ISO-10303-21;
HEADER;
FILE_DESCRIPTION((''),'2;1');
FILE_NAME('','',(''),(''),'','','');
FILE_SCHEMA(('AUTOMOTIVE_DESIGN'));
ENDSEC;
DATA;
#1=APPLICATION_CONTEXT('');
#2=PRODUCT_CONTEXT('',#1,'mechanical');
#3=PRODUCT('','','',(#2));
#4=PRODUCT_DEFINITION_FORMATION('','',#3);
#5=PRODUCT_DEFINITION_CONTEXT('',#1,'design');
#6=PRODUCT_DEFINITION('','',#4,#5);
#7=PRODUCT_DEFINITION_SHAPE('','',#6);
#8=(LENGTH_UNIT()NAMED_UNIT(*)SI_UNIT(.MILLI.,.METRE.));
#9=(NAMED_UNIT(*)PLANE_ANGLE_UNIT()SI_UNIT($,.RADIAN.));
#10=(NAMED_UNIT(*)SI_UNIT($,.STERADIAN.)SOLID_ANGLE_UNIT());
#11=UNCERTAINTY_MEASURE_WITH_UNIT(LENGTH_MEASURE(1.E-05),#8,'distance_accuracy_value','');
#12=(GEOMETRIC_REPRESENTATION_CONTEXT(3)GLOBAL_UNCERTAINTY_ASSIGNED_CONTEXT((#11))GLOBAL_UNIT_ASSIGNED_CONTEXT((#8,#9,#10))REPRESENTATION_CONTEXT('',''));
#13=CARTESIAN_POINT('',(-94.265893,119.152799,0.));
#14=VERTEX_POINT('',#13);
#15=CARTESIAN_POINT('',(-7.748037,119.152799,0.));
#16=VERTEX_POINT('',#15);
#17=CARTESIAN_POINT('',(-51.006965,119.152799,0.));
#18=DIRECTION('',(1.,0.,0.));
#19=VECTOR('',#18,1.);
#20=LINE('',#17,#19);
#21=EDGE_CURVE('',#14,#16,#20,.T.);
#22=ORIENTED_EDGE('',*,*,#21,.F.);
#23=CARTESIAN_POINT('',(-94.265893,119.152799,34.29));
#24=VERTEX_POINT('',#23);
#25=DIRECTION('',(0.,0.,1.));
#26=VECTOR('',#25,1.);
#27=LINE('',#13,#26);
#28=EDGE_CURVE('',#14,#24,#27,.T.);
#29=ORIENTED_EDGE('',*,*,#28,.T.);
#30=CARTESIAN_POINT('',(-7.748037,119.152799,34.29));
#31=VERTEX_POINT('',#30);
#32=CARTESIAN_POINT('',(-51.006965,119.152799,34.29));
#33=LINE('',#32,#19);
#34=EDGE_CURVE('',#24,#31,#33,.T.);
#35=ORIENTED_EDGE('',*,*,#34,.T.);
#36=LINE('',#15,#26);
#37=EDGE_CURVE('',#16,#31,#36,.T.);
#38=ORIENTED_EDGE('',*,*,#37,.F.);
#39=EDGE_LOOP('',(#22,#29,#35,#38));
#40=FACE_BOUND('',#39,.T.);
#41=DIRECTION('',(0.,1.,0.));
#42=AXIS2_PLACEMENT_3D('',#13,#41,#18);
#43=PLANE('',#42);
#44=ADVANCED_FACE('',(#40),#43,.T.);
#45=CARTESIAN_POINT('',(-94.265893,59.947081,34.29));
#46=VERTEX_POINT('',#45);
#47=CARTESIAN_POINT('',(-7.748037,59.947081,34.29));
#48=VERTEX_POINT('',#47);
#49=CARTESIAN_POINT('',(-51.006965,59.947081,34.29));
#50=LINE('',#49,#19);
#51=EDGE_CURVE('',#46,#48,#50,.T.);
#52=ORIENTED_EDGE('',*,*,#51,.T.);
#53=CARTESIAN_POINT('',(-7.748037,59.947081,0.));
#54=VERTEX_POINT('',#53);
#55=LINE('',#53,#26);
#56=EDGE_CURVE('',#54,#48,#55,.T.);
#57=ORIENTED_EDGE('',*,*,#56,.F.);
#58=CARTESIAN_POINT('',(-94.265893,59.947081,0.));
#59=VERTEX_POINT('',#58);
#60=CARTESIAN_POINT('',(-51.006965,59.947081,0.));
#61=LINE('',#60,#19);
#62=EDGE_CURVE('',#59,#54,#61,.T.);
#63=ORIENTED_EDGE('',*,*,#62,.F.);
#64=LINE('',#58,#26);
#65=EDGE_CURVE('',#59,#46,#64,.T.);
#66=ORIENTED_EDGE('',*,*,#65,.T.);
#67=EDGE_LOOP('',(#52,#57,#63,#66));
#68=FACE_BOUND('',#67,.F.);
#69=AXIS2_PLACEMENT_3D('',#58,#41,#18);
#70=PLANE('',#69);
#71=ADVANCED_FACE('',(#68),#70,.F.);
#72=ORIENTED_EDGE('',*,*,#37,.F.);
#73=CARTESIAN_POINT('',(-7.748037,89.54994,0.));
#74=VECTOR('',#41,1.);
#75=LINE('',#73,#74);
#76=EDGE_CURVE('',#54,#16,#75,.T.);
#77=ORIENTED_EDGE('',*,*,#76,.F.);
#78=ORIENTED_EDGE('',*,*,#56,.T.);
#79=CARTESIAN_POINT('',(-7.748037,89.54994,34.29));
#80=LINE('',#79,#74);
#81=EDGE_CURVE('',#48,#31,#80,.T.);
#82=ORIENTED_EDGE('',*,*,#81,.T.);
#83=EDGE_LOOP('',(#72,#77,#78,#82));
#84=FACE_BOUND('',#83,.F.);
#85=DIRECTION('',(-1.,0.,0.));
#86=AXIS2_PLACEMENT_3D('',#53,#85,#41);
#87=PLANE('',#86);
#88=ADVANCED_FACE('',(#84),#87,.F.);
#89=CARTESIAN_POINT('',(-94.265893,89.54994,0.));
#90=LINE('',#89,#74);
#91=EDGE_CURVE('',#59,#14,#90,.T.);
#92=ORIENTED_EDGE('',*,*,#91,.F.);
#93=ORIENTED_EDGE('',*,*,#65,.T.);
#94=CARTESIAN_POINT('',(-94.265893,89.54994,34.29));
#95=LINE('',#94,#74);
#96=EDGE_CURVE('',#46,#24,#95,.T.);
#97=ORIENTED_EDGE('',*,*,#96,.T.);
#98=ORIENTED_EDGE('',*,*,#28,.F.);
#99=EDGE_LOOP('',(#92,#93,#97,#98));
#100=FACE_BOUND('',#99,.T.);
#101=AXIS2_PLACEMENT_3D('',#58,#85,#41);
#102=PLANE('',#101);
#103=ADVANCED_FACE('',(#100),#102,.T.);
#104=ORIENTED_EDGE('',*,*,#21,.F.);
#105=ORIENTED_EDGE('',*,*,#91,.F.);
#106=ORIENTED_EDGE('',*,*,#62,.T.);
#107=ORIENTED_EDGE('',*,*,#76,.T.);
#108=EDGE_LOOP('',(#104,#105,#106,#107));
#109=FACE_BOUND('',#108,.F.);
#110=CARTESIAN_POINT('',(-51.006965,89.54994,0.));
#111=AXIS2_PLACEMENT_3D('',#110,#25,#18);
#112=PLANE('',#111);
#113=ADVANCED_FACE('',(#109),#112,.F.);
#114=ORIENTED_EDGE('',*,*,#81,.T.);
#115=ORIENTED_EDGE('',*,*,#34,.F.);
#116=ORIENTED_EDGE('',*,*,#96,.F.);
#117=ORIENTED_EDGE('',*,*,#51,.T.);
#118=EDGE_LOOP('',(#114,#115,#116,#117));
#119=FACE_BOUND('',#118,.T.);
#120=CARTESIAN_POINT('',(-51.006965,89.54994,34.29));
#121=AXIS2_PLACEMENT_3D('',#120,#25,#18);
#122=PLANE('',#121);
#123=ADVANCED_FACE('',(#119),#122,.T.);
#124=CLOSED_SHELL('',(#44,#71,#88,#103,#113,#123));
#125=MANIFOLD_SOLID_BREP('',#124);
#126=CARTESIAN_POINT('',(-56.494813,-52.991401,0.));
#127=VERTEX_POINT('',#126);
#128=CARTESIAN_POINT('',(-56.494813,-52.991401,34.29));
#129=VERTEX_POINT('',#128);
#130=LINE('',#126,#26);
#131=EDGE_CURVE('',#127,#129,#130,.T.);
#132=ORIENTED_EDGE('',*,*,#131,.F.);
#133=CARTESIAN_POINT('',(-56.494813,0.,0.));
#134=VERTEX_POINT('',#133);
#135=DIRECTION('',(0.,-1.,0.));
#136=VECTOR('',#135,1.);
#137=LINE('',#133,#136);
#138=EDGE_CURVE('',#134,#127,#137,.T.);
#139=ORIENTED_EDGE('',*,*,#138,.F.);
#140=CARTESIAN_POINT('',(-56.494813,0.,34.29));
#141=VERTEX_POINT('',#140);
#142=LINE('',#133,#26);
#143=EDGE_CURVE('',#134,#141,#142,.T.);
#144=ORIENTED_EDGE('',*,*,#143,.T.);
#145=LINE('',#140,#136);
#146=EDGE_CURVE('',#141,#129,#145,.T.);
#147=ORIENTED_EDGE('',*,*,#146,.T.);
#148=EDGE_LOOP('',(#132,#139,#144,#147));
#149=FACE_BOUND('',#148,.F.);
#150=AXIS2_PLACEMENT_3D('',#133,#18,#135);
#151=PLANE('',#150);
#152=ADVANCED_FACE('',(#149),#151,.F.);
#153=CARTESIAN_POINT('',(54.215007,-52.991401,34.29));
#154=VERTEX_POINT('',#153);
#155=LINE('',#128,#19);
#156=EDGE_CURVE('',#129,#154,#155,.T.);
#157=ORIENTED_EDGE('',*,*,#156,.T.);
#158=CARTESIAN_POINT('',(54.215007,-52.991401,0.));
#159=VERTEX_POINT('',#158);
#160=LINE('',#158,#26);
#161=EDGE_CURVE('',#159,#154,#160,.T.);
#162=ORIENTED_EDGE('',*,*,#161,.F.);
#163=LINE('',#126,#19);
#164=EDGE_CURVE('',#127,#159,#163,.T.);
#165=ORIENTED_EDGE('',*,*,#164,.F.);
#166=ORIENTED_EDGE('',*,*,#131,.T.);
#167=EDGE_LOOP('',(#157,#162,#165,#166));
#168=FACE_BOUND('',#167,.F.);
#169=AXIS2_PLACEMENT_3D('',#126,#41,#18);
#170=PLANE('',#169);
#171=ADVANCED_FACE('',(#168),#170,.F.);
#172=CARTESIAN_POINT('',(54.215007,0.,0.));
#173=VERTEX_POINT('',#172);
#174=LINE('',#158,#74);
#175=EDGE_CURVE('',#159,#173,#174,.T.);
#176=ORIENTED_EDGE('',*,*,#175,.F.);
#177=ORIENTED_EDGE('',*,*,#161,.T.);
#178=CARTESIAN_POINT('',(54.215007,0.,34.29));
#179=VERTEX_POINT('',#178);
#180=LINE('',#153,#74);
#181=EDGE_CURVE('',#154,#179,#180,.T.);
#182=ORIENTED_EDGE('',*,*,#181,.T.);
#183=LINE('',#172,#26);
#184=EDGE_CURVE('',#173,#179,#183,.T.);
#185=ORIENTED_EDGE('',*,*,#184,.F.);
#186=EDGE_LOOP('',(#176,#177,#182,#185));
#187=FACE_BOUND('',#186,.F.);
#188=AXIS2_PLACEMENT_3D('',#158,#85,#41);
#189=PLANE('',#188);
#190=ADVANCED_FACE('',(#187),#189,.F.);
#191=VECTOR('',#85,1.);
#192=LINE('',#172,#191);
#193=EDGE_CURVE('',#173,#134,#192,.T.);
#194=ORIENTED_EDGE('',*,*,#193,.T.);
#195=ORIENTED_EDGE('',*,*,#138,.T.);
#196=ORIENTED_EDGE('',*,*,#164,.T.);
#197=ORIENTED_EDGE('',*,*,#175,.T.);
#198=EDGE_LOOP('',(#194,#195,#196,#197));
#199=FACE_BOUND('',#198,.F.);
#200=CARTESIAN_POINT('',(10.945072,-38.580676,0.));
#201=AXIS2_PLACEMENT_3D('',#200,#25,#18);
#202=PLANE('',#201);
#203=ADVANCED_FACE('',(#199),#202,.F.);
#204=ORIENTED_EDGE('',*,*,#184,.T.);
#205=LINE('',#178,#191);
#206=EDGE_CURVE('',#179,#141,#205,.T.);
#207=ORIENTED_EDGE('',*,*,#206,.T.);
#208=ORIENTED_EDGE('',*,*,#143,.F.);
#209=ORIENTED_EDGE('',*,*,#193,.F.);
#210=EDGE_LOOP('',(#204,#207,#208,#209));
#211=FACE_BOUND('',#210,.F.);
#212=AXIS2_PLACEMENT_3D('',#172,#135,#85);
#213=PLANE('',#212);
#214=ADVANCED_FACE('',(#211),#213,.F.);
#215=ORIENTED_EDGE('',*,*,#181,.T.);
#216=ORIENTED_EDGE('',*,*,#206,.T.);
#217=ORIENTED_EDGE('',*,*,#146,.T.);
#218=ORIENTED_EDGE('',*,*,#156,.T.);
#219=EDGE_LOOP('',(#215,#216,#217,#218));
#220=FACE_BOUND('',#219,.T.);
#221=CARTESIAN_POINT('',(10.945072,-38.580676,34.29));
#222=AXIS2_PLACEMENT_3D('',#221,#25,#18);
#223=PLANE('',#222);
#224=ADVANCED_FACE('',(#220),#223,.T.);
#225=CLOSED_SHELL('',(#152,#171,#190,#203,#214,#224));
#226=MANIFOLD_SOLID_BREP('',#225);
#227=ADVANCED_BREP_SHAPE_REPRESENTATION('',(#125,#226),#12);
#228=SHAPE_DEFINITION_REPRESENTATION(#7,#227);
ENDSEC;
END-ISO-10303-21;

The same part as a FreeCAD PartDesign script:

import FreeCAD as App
import Part
import Sketcher

V = App.Vector
Q = App.Units.Quantity

doc = App.newDocument("Part")
body = doc.addObject("PartDesign::Body", "Body")

# Sketch on XY plane
sketch1 = doc.addObject("Sketcher::SketchObject", "Sketch")
body.addObject(sketch1)
sketch1.AttachmentSupport = (doc.XY_Plane, [""])
sketch1.MapMode = "FlatFace"
sketch1.addGeometry(Part.LineSegment(V(-94.265893, 119.152799, 0), V(-94.265893, 59.947081, 0)), False)
sketch1.addGeometry(Part.LineSegment(V(-94.265893, 59.947081, 0), V(-7.748037, 59.947081, 0)), False)
sketch1.addGeometry(Part.LineSegment(V(-7.748037, 59.947081, 0), V(-7.748037, 119.152799, 0)), False)
sketch1.addGeometry(Part.LineSegment(V(-7.748037, 119.152799, 0), V(-94.265893, 119.152799, 0)), False)
sketch1.addConstraint(Sketcher.Constraint("Coincident", 0, 2, 1, 1))
sketch1.addConstraint(Sketcher.Constraint("Coincident", 1, 2, 2, 1))
sketch1.addConstraint(Sketcher.Constraint("Coincident", 2, 2, 3, 1))
sketch1.addConstraint(Sketcher.Constraint("Coincident", 3, 2, 0, 1))
sketch1.addConstraint(Sketcher.Constraint("Vertical", 0))
sketch1.addConstraint(Sketcher.Constraint("Horizontal", 1))
sketch1.addConstraint(Sketcher.Constraint("Vertical", 2))
sketch1.addConstraint(Sketcher.Constraint("Horizontal", 3))
sketch1.addConstraint(Sketcher.Constraint("DistanceY", 0, 2, 0, 1, 59.205718))
sketch1.addConstraint(Sketcher.Constraint("DistanceY", -1, 1, 2, 2, 119.152799))
sketch1.addConstraint(Sketcher.Constraint("DistanceX", 1, 1, 1, 2, 86.517856))
sketch1.addConstraint(Sketcher.Constraint("DistanceX", 0, 2, -1, 1, 94.265893))
pad1 = doc.addObject("PartDesign::Pad", "Pad")
body.addObject(pad1)
pad1.Profile = sketch1
pad1.Length = Q("1.35 in")
body2 = doc.addObject("PartDesign::Body", "Body001")

# Sketch on XY plane
sketch2 = doc.addObject("Sketcher::SketchObject", "Sketch001")
body2.addObject(sketch2)
sketch2.AttachmentSupport = (doc.getObject("XY_Plane001"), [""])
sketch2.MapMode = "FlatFace"
sketch2.addGeometry(Part.LineSegment(V(54.215007, 0, 0), V(-56.494813, 0, 0)), False)
sketch2.addGeometry(Part.LineSegment(V(-56.494813, 0, 0), V(-56.494813, -52.991401, 0)), False)
sketch2.addGeometry(Part.LineSegment(V(-56.494813, -52.991401, 0), V(54.215007, -52.991401, 0)), False)
sketch2.addGeometry(Part.LineSegment(V(54.215007, -52.991401, 0), V(54.215007, 0, 0)), False)
sketch2.addConstraint(Sketcher.Constraint("Coincident", 0, 2, 1, 1))
sketch2.addConstraint(Sketcher.Constraint("Coincident", 1, 2, 2, 1))
sketch2.addConstraint(Sketcher.Constraint("Coincident", 2, 2, 3, 1))
sketch2.addConstraint(Sketcher.Constraint("Coincident", 3, 2, 0, 1))
sketch2.addConstraint(Sketcher.Constraint("Horizontal", 0))
sketch2.addConstraint(Sketcher.Constraint("Vertical", 1))
sketch2.addConstraint(Sketcher.Constraint("Horizontal", 2))
sketch2.addConstraint(Sketcher.Constraint("Vertical", 3))
sketch2.addConstraint(Sketcher.Constraint("PointOnObject", 0, 2, -1))
sketch2.addConstraint(Sketcher.Constraint("DistanceY", 1, 2, 1, 1, 52.991401))
sketch2.addConstraint(Sketcher.Constraint("DistanceX", 0, 2, 0, 1, 110.70982))
sketch2.addConstraint(Sketcher.Constraint("DistanceX", 0, 2, -1, 1, 56.494813))
pad2 = doc.addObject("PartDesign::Pad", "Pad001")
body2.addObject(pad2)
pad2.Profile = sketch2
pad2.Length = Q("1.35 in")

doc.recompute()
